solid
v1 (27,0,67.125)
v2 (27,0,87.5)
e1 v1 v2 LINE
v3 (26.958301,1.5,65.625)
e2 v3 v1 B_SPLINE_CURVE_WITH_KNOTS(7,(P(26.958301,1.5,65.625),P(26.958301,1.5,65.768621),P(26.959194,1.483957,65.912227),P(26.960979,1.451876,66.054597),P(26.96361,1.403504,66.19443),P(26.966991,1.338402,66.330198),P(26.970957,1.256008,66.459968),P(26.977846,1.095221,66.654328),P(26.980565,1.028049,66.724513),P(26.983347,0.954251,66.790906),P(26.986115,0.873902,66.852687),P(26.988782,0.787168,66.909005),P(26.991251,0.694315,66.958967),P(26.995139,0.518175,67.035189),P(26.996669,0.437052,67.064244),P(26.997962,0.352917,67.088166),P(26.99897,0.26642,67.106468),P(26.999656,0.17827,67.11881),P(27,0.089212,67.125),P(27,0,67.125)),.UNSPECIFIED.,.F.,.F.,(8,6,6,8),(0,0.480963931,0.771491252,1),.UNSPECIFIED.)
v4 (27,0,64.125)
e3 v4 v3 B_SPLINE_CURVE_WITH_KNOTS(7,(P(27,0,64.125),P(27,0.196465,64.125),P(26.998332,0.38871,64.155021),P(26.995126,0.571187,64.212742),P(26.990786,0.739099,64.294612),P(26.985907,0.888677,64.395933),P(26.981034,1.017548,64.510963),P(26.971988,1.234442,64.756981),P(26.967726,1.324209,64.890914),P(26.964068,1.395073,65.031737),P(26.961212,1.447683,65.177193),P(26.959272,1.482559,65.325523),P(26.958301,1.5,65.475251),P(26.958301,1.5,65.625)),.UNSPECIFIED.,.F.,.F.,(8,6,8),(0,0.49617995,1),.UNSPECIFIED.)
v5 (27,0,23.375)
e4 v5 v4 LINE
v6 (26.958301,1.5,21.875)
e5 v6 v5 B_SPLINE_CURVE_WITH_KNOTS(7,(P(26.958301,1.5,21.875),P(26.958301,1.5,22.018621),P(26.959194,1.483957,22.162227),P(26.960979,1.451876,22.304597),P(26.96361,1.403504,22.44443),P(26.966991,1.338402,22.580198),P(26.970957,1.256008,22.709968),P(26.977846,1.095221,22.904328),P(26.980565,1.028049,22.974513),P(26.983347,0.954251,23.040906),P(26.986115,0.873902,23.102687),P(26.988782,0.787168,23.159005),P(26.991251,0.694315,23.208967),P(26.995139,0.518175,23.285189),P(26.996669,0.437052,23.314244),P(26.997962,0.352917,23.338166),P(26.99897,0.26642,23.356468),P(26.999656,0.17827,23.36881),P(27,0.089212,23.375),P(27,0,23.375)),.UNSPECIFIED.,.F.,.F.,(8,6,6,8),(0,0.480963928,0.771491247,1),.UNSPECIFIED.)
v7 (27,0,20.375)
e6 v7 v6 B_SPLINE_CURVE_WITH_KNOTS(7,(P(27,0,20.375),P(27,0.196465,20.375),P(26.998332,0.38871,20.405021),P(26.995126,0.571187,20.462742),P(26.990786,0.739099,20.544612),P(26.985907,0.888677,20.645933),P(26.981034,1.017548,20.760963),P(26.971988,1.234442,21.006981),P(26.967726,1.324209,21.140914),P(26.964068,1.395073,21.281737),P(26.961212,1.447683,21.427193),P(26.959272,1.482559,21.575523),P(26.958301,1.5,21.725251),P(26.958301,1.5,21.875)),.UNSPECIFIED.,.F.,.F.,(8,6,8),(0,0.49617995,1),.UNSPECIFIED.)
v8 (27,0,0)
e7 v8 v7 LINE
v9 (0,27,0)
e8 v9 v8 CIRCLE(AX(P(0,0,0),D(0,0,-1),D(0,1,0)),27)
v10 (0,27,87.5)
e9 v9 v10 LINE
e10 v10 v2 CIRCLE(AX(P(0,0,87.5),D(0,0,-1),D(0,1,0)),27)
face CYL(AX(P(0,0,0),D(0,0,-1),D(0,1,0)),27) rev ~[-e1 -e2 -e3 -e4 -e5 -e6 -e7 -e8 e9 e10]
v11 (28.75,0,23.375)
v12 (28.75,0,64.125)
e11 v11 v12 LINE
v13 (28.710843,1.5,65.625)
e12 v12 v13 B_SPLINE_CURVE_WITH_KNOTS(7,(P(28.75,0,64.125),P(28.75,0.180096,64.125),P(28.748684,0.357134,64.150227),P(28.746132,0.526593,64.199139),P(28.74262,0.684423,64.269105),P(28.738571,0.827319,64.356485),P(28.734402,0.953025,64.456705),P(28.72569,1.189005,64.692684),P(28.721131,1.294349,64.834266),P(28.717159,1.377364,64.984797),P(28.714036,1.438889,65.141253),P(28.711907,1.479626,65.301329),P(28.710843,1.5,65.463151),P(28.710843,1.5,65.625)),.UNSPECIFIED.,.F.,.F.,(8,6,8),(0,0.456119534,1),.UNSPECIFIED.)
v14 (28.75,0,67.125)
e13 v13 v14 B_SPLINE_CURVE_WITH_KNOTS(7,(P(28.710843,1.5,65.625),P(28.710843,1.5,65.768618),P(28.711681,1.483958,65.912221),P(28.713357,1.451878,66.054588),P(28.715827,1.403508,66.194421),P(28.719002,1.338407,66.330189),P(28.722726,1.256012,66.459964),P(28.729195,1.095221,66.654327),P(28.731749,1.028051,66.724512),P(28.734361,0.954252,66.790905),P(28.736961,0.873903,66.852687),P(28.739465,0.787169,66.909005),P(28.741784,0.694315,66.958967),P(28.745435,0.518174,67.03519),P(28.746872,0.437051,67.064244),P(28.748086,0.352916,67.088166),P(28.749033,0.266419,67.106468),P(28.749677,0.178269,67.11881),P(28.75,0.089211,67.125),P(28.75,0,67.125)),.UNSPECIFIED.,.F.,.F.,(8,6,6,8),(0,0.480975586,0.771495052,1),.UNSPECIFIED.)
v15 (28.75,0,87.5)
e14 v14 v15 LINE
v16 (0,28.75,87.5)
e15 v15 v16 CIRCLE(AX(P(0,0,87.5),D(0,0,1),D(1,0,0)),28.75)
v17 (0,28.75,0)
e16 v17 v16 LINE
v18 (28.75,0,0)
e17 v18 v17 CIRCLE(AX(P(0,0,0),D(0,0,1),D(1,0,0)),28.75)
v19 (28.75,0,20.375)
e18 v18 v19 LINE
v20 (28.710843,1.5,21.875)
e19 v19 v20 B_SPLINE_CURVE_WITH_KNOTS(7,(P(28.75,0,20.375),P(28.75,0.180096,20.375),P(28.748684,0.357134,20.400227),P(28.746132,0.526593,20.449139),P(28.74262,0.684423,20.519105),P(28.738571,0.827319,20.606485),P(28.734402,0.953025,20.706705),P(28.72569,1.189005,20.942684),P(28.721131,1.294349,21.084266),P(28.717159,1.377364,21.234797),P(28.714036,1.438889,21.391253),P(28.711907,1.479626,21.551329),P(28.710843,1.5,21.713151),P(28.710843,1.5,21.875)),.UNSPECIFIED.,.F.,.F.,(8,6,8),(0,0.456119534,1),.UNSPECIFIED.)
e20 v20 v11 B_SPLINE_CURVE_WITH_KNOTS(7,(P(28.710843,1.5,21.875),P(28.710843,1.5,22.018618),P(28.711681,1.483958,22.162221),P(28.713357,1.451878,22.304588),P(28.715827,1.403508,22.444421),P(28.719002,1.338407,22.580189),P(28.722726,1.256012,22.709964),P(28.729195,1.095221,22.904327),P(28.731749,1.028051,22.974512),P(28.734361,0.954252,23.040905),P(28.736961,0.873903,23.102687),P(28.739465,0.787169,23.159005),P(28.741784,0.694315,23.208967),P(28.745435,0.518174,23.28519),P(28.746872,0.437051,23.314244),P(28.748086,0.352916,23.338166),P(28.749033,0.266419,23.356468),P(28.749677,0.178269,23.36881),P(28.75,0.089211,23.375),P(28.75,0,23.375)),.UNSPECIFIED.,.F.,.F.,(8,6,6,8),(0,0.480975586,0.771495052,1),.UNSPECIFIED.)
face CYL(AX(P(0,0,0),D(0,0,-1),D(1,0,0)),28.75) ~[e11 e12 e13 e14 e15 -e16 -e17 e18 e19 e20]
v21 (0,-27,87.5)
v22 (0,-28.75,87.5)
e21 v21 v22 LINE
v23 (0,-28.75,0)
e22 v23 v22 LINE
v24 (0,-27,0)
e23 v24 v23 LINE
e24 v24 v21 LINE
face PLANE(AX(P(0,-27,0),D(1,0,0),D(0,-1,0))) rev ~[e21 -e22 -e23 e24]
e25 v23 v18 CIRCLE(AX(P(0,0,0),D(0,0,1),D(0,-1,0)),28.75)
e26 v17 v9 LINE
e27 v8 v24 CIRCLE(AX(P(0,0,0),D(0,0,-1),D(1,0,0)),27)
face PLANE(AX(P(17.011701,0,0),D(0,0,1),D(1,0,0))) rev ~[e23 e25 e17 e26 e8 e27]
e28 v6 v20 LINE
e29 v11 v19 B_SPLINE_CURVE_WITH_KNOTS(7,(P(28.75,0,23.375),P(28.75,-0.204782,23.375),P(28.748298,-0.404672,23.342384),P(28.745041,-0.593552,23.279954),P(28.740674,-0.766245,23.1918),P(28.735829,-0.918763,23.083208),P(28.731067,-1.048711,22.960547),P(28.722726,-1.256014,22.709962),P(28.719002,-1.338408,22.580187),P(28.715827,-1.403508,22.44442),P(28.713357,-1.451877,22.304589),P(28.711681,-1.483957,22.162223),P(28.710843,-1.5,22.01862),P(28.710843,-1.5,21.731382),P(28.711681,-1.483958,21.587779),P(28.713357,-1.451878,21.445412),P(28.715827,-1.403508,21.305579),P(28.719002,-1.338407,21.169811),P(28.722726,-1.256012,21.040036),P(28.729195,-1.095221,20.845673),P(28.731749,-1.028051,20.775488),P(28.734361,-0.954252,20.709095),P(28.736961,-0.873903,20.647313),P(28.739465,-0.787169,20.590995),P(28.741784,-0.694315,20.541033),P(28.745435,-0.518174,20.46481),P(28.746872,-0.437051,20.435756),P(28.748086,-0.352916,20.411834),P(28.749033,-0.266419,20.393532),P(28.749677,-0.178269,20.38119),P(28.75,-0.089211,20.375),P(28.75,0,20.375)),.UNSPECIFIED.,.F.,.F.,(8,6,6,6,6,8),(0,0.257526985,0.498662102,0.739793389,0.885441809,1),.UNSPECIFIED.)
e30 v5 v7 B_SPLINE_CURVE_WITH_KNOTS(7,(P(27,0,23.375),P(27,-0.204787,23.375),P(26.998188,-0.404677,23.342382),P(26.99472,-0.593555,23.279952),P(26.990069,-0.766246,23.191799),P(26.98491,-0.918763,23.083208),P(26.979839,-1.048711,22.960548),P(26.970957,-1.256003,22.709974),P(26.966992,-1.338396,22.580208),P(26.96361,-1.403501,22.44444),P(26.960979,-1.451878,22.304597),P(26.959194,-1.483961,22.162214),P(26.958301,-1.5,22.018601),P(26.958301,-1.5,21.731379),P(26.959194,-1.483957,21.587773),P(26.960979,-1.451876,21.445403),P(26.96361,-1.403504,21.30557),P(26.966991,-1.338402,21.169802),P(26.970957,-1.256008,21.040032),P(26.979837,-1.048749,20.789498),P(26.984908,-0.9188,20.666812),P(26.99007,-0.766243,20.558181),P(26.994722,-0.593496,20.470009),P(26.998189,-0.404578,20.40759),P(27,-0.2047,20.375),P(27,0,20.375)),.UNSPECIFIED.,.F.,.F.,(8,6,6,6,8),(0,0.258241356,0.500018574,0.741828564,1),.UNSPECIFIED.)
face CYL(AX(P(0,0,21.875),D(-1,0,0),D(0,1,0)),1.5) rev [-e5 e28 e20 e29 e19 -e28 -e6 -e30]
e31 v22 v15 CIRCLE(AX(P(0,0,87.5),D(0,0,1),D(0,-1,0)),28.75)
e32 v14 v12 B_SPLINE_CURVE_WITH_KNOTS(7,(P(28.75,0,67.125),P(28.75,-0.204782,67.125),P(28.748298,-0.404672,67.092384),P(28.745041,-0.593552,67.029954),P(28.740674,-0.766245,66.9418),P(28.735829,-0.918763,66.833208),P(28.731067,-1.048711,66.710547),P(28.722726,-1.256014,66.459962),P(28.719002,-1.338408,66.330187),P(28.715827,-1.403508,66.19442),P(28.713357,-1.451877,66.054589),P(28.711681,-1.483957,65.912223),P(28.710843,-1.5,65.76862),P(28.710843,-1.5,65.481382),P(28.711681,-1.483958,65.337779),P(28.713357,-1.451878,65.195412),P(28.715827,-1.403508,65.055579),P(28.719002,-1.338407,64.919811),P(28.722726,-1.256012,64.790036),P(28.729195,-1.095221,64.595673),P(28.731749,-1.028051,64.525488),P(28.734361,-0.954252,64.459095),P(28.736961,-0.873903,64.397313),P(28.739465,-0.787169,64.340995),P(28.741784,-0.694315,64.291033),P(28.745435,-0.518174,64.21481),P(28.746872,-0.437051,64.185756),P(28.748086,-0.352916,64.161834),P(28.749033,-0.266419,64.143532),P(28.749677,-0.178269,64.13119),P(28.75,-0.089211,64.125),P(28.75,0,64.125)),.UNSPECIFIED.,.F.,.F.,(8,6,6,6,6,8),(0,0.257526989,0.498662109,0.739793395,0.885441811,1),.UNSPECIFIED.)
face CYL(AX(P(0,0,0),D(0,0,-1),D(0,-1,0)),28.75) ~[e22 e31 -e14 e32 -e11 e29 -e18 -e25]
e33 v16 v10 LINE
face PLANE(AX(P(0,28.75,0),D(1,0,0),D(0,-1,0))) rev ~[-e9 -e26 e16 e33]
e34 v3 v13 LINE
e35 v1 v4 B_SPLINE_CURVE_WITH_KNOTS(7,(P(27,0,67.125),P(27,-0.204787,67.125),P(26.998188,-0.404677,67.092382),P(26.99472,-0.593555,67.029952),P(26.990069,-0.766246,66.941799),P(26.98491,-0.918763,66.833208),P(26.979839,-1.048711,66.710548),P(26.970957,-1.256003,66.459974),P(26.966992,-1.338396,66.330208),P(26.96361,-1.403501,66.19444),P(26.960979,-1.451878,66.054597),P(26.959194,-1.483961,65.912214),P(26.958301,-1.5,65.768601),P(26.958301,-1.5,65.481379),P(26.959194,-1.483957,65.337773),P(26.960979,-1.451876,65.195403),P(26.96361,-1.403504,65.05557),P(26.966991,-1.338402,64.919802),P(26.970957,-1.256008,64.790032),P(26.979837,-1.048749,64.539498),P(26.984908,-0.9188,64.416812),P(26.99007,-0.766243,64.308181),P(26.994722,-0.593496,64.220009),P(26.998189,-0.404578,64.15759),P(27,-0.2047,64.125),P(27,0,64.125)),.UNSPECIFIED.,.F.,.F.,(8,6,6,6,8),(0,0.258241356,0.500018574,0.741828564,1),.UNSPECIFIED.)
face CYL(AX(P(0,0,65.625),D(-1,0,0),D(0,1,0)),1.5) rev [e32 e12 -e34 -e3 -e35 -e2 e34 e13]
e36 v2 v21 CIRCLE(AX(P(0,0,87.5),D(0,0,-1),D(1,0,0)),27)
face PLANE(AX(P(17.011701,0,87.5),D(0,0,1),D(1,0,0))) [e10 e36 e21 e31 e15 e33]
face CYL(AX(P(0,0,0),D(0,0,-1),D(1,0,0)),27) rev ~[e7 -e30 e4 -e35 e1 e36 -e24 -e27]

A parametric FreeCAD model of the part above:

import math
import FreeCAD as App
import Part
import Sketcher

doc = App.newDocument("Part")
body = doc.addObject("PartDesign::Body", "Body")

# Sketch on XY plane
sketch1 = body.newObject("Sketcher::SketchObject", "Sketch")
sketch1.AttachmentSupport = (doc.getObject("XY_Plane"), [""])
sketch1.MapMode = "FlatFace"
sketch1.addGeometry(Part.ArcOfCircle(Part.Circle(App.Vector(0, 0, 0), App.Vector(0, 0, 1), 28.8), math.radians(-90), math.radians(0)), False)
sketch1.addGeometry(Part.ArcOfCircle(Part.Circle(App.Vector(0, 0, 0), App.Vector(0, 0, 1), 28.8), math.radians(0), math.radians(90)), False)
sketch1.addGeometry(Part.LineSegment(App.Vector(0, 28.8, 0), App.Vector(0, 27, 0)), False)
sketch1.addGeometry(Part.ArcOfCircle(Part.Circle(App.Vector(0, 0, 0), App.Vector(0, 0, 1), 27), math.radians(0), math.radians(90)), False)
sketch1.addGeometry(Part.ArcOfCircle(Part.Circle(App.Vector(0, 0, 0), App.Vector(0, 0, 1), 27), math.radians(-90), math.radians(0)), False)
sketch1.addGeometry(Part.LineSegment(App.Vector(0, -27, 0), App.Vector(0, -28.8, 0)), False)
sketch1.addConstraint(Sketcher.Constraint("Tangent", 0, 2, 1, 1))
sketch1.addConstraint(Sketcher.Constraint("Coincident", 1, 2, 2, 1))
sketch1.addConstraint(Sketcher.Constraint("Coincident", 2, 2, 3, 2))
sketch1.addConstraint(Sketcher.Constraint("Tangent", 3, 1, 4, 2))
sketch1.addConstraint(Sketcher.Constraint("Coincident", 4, 1, 5, 1))
sketch1.addConstraint(Sketcher.Constraint("Coincident", 5, 2, 0, 1))
sketch1.addConstraint(Sketcher.Constraint("Vertical", 2))
sketch1.addConstraint(Sketcher.Constraint("Vertical", 5))
sketch1.addConstraint(Sketcher.Constraint("Coincident", 0, 3, -1, 1))
sketch1.addConstraint(Sketcher.Constraint("Coincident", 3, 3, -1, 1))
sketch1.addConstraint(Sketcher.Constraint("Equal", 0, 1))
sketch1.addConstraint(Sketcher.Constraint("Equal", 3, 4))
sketch1.addConstraint(Sketcher.Constraint("PointOnObject", 0, 2, -1))
sketch1.addConstraint(Sketcher.Constraint("PointOnObject", 1, 2, -2))
sketch1.addConstraint(Sketcher.Constraint("PointOnObject", 3, 1, -1))
sketch1.addConstraint(Sketcher.Constraint("PointOnObject", 4, 1, -2))
sketch1.addConstraint(Sketcher.Constraint("Radius", 3, 27.0))
sketch1.addConstraint(Sketcher.Constraint("Radius", 0, 28.75))
pad1 = body.newObject("PartDesign::Pad", "Pad")
pad1.Profile = sketch1
pad1.Length = 87.5

# Sketch on YZ plane
sketch2 = body.newObject("Sketcher::SketchObject", "Sketch001")
sketch2.AttachmentSupport = (doc.getObject("YZ_Plane"), [""])
sketch2.MapMode = "FlatFace"
sketch2.addGeometry(Part.Circle(App.Vector(0, 65.6, 0), App.Vector(0, 0, 1), 1.5), False)
sketch2.addGeometry(Part.Circle(App.Vector(0, 21.9, 0), App.Vector(0, 0, 1), 1.5), False)
sketch2.addConstraint(Sketcher.Constraint("Equal", 0, 1))
sketch2.addConstraint(Sketcher.Constraint("PointOnObject", 0, 3, -2))
sketch2.addConstraint(Sketcher.Constraint("PointOnObject", 1, 3, -2))
sketch2.addConstraint(Sketcher.Constraint("Diameter", 0, 3.0))
sketch2.addConstraint(Sketcher.Constraint("DistanceY", 1, 3, 0, 3, 43.75))
sketch2.addConstraint(Sketcher.Constraint("DistanceY", -1, 1, 0, 3, 65.625))
pocket1 = body.newObject("PartDesign::Pocket", "Pocket")
pocket1.Profile = sketch2
pocket1.Type = "ThroughAll"
pocket1.Reversed = True

doc.recompute()
